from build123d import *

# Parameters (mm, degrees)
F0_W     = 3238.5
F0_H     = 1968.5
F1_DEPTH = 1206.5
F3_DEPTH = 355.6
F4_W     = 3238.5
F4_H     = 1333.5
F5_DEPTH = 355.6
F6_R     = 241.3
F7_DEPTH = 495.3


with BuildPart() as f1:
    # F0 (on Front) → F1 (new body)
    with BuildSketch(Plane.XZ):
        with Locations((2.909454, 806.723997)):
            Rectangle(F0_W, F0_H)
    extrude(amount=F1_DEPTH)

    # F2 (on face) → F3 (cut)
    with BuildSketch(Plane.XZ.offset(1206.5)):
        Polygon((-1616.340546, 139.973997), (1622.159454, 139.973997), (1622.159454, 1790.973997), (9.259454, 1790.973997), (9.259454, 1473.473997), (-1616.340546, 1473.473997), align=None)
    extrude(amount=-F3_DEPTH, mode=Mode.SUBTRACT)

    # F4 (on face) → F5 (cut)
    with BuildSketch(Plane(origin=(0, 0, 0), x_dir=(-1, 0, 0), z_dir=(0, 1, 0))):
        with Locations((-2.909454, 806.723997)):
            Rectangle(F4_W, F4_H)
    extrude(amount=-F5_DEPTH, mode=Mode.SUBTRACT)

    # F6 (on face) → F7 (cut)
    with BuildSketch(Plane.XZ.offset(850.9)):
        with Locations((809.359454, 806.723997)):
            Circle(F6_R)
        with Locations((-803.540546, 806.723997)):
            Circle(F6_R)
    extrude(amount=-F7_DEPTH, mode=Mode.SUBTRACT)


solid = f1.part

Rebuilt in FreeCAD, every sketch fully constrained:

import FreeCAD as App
import Part
import Sketcher
from FreeCAD import Vector
Q = App.Units.Quantity

doc = App.newDocument("Part")
params = doc.addObject("Spreadsheet::Sheet", "Params")
for row, (alias, value) in enumerate([
    ("sketch1_width", "127.5 in"),
    ("sketch1_height", "77.5 in"),
    ("pad1_length", "47.5 in"),
    ("sketch2_width", "64 in"),
    ("sketch2_height", "65 in"),
    ("sketch2_width2", "127.5 in"),
    ("sketch2_height2", "12.5 in"),
    ("pocket1_length", "14 in"),
    ("sketch3_width", "127.5 in"),
    ("sketch3_height", "52.5 in"),
    ("pocket2_length", "14 in"),
    ("sketch4_diameter", "19 in"),
    ("pocket3_length", "19.5 in"),
], start=1):
    params.set(f"A{row}", alias)
    params.set(f"B{row}", "=" + value)
    params.setAlias(f"B{row}", alias)

body = doc.addObject("PartDesign::Body", "Body")

# Sketch on XZ plane
sketch1 = body.newObject("Sketcher::SketchObject", "Sketch")
sketch1.AttachmentSupport = (doc.getObject("XZ_Plane"), [""])
sketch1.MapMode = "FlatFace"
sketch1.addGeometry([
    Part.LineSegment(Vector(-1616.340546, 1790.973997, 0), Vector(-1616.340546, -177.526003, 0)),
    Part.LineSegment(Vector(-1616.340546, -177.526003, 0), Vector(1622.159454, -177.526003, 0)),
    Part.LineSegment(Vector(1622.159454, -177.526003, 0), Vector(1622.159454, 1790.973997, 0)),
    Part.LineSegment(Vector(1622.159454, 1790.973997, 0), Vector(-1616.340546, 1790.973997, 0)),
], False)
sketch1.addConstraint([
    Sketcher.Constraint("Coincident", 0, 2, 1, 1),
    Sketcher.Constraint("Coincident", 1, 2, 2, 1),
    Sketcher.Constraint("Coincident", 2, 2, 3, 1),
    Sketcher.Constraint("Coincident", 3, 2, 0, 1),
    Sketcher.Constraint("Vertical", 0),
    Sketcher.Constraint("Horizontal", 1),
    Sketcher.Constraint("Vertical", 2),
    Sketcher.Constraint("Horizontal", 3),
    Sketcher.Constraint("DistanceX", 1, 1, 1, 2, Q("127.5 in")),
    Sketcher.Constraint("DistanceY", 0, 2, 0, 1, Q("77.5 in")),
    Sketcher.Constraint("DistanceX", 0, 2, -1, 1, Q("1616.340546 mm")),
    Sketcher.Constraint("DistanceY", 0, 2, -1, 1, Q("177.526003 mm")),
])
sketch1.setExpression("Constraints[8]", "Params.sketch1_width")
sketch1.setExpression("Constraints[9]", "Params.sketch1_height")
pad1 = body.newObject("PartDesign::Pad", "Pad")
pad1.Profile = sketch1
pad1.setExpression("Length", "Params.pad1_length")

# Sketch on XZ plane
sketch2 = body.newObject("Sketcher::SketchObject", "Sketch001")
sketch2.AttachmentSupport = (doc.getObject("XZ_Plane"), [""])
sketch2.MapMode = "FlatFace"
sketch2.AttachmentOffset = App.Placement(Vector(0, 0, 47.5 * 25.4), App.Rotation())
sketch2.addGeometry([
    Part.LineSegment(Vector(-1616.340546, 139.973997, 0), Vector(1622.159454, 139.973997, 0)),  # 0
    Part.LineSegment(Vector(1622.159454, 139.973997, 0), Vector(1622.159454, 1790.973997, 0)),  # 1
    Part.LineSegment(Vector(1622.159454, 1790.973997, 0), Vector(9.259454, 1790.973997, 0)),  # 2
    Part.LineSegment(Vector(9.259454, 1790.973997, 0), Vector(9.259454, 1473.473997, 0)),  # 3
    Part.LineSegment(Vector(9.259454, 1473.473997, 0), Vector(-1616.340546, 1473.473997, 0)),  # 4
    Part.LineSegment(Vector(-1616.340546, 1473.473997, 0), Vector(-1616.340546, 139.973997, 0)),  # 5
], False)
sketch2.addConstraint([
    Sketcher.Constraint("Coincident", 0, 2, 1, 1),
    Sketcher.Constraint("Coincident", 1, 2, 2, 1),
    Sketcher.Constraint("Coincident", 2, 2, 3, 1),
    Sketcher.Constraint("Coincident", 3, 2, 4, 1),
    Sketcher.Constraint("Coincident", 4, 2, 5, 1),
    Sketcher.Constraint("Coincident", 5, 2, 0, 1),
    Sketcher.Constraint("Horizontal", 0),
    Sketcher.Constraint("Vertical", 1),
    Sketcher.Constraint("Horizontal", 2),
    Sketcher.Constraint("Vertical", 3),
    Sketcher.Constraint("Horizontal", 4),
    Sketcher.Constraint("Vertical", 5),
    Sketcher.Constraint("DistanceX", 4, 2, 4, 1, Q("64 in")),
    Sketcher.Constraint("DistanceY", 1, 1, 1, 2, Q("65 in")),
    Sketcher.Constraint("DistanceX", 0, 1, 0, 2, Q("127.5 in")),
    Sketcher.Constraint("DistanceY", 3, 2, 3, 1, Q("12.5 in")),
    Sketcher.Constraint("DistanceX", -1, 1, 0, 2, Q("1622.159454 mm")),
    Sketcher.Constraint("DistanceY", -1, 1, 0, 2, Q("139.973997 mm")),
])
sketch2.setExpression("Constraints[12]", "Params.sketch2_width")
sketch2.setExpression("Constraints[13]", "Params.sketch2_height")
sketch2.setExpression("Constraints[14]", "Params.sketch2_width2")
sketch2.setExpression("Constraints[15]", "Params.sketch2_height2")
pocket1 = body.newObject("PartDesign::Pocket", "Pocket")
pocket1.Profile = sketch2
pocket1.setExpression("Length", "Params.pocket1_length")

# Sketch on XZ plane
sketch3 = body.newObject("Sketcher::SketchObject", "Sketch002")
sketch3.AttachmentSupport = (doc.getObject("XZ_Plane"), [""])
sketch3.MapMode = "FlatFace"
sketch3.addGeometry([
    Part.LineSegment(Vector(1622.159454, 1473.473997, 0), Vector(1622.159454, 139.973997, 0)),
    Part.LineSegment(Vector(1622.159454, 139.973997, 0), Vector(-1616.340546, 139.973997, 0)),
    Part.LineSegment(Vector(-1616.340546, 139.973997, 0), Vector(-1616.340546, 1473.473997, 0)),
    Part.LineSegment(Vector(-1616.340546, 1473.473997, 0), Vector(1622.159454, 1473.473997, 0)),
], False)
sketch3.addConstraint([
    Sketcher.Constraint("Coincident", 0, 2, 1, 1),
    Sketcher.Constraint("Coincident", 1, 2, 2, 1),
    Sketcher.Constraint("Coincident", 2, 2, 3, 1),
    Sketcher.Constraint("Coincident", 3, 2, 0, 1),
    Sketcher.Constraint("Vertical", 0),
    Sketcher.Constraint("Horizontal", 1),
    Sketcher.Constraint("Vertical", 2),
    Sketcher.Constraint("Horizontal", 3),
    Sketcher.Constraint("DistanceX", 1, 2, 1, 1, Q("127.5 in")),
    Sketcher.Constraint("DistanceY", 0, 2, 0, 1, Q("52.5 in")),
    Sketcher.Constraint("DistanceX", -1, 1, 0, 2, Q("1622.159454 mm")),
    Sketcher.Constraint("DistanceY", -1, 1, 0, 2, Q("139.973997 mm")),
])
sketch3.setExpression("Constraints[8]", "Params.sketch3_width")
sketch3.setExpression("Constraints[9]", "Params.sketch3_height")
pocket2 = body.newObject("PartDesign::Pocket", "Pocket001")
pocket2.Profile = sketch3
pocket2.setExpression("Length", "Params.pocket2_length")
pocket2.Reversed = True

# Sketch on XZ plane
sketch4 = body.newObject("Sketcher::SketchObject", "Sketch003")
sketch4.AttachmentSupport = (doc.getObject("XZ_Plane"), [""])
sketch4.MapMode = "FlatFace"
sketch4.AttachmentOffset = App.Placement(Vector(0, 0, 33.5 * 25.4), App.Rotation())
sketch4.addGeometry([
    Part.Circle(Vector(809.359454, 806.723997, 0), Vector(0, 0, 1), 241.3),
    Part.Circle(Vector(-803.540546, 806.723997, 0), Vector(0, 0, 1), 241.3),
], False)
sketch4.addConstraint([
    Sketcher.Constraint("Equal", 0, 1),
    Sketcher.Constraint("Horizontal", 0, 3, 1, 3),
    Sketcher.Constraint("Diameter", 0, Q("19 in")),
    Sketcher.Constraint("DistanceX", 1, 3, 0, 3, Q("63.5 in")),
    Sketcher.Constraint("DistanceX", -1, 1, 0, 3, Q("809.359454 mm")),
    Sketcher.Constraint("DistanceY", -1, 1, 0, 3, Q("806.723997 mm")),
])
sketch4.setExpression("Constraints[2]", "Params.sketch4_diameter")
pocket3 = body.newObject("PartDesign::Pocket", "Pocket002")
pocket3.Profile = sketch4
pocket3.setExpression("Length", "Params.pocket3_length")

doc.recompute()
